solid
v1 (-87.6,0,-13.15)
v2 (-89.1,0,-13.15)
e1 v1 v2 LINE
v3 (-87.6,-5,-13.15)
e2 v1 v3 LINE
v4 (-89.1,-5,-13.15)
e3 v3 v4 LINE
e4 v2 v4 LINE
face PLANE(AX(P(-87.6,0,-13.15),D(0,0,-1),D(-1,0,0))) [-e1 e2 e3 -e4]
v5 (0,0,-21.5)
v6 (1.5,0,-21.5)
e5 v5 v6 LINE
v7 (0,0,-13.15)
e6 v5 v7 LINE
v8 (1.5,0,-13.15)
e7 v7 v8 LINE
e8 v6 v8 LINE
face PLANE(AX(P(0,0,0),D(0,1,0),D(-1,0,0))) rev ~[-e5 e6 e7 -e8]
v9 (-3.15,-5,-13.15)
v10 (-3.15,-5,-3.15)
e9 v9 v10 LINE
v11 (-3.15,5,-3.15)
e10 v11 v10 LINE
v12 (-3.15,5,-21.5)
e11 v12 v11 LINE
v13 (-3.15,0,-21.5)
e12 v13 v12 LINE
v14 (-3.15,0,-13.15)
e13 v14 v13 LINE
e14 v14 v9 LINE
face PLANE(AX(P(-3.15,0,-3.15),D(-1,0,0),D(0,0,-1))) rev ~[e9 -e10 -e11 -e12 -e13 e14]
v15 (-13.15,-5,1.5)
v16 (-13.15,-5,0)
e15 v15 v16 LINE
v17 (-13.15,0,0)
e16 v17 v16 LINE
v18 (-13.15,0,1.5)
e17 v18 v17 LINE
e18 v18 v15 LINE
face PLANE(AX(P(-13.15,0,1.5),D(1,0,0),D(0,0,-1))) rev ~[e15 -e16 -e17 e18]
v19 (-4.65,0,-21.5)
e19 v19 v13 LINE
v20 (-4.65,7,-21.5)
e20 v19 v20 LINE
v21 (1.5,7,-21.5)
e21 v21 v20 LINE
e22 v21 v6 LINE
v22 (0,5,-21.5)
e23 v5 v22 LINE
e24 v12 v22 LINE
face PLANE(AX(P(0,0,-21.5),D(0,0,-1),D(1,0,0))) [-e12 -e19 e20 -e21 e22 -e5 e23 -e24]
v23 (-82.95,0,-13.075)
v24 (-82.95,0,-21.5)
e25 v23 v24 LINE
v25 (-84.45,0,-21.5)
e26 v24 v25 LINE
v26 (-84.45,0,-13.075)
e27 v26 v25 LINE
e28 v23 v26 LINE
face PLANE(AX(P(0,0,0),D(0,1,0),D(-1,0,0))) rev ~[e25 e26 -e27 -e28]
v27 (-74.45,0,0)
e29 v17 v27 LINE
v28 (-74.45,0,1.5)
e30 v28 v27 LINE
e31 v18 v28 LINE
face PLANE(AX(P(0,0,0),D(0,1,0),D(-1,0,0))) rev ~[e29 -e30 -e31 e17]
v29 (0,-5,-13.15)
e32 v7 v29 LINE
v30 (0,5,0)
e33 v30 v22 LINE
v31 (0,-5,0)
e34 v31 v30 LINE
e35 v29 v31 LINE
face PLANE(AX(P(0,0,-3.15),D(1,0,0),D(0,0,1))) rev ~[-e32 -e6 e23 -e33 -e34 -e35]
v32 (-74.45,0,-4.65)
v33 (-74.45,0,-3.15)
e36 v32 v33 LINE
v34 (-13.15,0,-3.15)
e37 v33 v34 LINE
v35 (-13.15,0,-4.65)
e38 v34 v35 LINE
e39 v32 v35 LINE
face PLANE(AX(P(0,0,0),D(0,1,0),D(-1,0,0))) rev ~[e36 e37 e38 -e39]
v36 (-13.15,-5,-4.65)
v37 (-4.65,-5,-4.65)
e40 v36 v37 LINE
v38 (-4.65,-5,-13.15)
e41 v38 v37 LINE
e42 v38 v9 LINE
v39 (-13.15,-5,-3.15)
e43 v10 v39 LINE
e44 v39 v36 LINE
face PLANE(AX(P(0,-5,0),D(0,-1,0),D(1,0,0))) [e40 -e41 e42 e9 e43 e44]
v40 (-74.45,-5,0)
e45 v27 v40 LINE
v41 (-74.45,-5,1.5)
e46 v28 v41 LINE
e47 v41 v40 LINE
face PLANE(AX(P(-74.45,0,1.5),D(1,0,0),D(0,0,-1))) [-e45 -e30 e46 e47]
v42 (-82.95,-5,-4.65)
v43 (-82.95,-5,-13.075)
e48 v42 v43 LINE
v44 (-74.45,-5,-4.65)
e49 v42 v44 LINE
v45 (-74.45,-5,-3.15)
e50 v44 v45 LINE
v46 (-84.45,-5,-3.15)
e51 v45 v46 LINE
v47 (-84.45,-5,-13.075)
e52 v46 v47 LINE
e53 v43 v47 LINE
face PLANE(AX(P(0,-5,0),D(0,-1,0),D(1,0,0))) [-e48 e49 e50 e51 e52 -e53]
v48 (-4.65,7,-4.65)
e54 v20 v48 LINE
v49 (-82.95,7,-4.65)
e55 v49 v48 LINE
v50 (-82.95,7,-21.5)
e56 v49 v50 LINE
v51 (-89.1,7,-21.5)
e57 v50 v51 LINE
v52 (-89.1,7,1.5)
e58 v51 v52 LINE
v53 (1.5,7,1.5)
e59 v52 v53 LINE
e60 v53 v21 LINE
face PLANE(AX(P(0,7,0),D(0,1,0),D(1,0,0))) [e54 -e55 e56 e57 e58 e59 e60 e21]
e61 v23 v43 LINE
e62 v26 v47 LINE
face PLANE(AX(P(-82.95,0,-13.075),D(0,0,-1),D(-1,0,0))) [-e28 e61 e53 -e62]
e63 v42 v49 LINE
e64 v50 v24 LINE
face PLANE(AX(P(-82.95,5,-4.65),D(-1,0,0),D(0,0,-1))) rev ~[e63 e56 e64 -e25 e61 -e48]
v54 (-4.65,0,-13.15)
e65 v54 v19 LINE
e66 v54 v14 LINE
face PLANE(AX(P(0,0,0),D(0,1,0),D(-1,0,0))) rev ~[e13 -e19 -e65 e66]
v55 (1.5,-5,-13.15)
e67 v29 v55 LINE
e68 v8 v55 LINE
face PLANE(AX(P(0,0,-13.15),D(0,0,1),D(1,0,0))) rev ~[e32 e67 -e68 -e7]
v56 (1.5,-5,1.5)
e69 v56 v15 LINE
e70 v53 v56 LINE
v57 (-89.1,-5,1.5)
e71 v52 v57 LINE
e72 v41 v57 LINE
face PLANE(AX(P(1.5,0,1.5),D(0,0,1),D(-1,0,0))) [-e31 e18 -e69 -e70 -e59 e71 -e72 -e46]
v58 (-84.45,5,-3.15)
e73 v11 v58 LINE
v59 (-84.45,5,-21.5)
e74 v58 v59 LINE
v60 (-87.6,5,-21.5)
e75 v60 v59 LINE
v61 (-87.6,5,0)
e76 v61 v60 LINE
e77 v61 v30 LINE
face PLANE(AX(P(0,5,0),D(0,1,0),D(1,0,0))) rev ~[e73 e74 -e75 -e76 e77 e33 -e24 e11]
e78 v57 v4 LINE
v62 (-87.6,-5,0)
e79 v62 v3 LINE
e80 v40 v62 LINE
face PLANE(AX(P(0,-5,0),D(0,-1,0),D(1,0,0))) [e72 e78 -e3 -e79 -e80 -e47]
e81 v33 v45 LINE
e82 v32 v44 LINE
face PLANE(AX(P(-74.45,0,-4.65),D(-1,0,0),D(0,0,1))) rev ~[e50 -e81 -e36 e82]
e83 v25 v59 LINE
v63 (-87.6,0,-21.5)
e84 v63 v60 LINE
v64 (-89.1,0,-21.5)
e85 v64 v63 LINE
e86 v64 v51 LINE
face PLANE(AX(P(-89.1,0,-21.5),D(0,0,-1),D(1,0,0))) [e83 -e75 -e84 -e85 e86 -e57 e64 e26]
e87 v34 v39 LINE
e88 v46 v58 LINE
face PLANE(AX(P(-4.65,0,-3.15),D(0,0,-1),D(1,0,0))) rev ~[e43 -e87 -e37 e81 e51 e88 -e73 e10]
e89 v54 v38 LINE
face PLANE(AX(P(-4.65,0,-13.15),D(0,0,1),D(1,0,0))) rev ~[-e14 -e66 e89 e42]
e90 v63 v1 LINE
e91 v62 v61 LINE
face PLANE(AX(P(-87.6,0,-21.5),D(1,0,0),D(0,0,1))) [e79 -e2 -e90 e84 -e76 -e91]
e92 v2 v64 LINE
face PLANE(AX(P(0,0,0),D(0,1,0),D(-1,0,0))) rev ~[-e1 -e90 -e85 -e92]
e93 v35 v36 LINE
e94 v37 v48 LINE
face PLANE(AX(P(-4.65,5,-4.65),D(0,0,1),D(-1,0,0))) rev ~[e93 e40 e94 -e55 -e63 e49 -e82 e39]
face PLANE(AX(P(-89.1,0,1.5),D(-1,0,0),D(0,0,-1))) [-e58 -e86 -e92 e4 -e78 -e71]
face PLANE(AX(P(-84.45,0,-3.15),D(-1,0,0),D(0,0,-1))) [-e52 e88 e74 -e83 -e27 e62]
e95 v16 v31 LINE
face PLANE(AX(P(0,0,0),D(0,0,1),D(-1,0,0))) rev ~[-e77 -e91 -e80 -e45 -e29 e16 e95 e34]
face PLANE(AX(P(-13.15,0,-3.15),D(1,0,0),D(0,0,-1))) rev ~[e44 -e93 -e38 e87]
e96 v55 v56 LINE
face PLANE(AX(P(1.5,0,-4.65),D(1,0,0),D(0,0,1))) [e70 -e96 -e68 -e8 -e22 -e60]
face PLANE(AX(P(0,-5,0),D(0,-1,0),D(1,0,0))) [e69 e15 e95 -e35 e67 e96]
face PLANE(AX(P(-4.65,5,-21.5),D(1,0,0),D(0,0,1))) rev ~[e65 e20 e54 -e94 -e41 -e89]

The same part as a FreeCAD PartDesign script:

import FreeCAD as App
import Part
import Sketcher

V = App.Vector
Q = App.Units.Quantity

doc = App.newDocument("Part")
body = doc.addObject("PartDesign::Body", "Body")
body.AllowCompound = True

sketch1 = body.newObject("Sketcher::SketchObject", "Sketch")
sketch1.AttachmentSupport = (doc.getObject("XZ_Plane"), [""])
sketch1.MapMode = "FlatFace"
sketch1.addGeometry([
    Part.LineSegment(V(0, 0, 0), V(-87.6, 0, 0)),
    Part.LineSegment(V(-87.6, 0, 0), V(-87.6, -21.5, 0)),
    Part.LineSegment(V(-87.6, -21.5, 0), V(-89.1, -21.5, 0)),
    Part.LineSegment(V(-89.1, -21.5, 0), V(-89.1, 1.5, 0)),
    Part.LineSegment(V(-89.1, 1.5, 0), V(1.5, 1.5, 0)),
    Part.LineSegment(V(1.5, 1.5, 0), V(1.5, -21.5, 0)),
    Part.LineSegment(V(1.5, -21.5, 0), V(0, -21.5, 0)),
    Part.LineSegment(V(0, -21.5, 0), V(0, 0, 0)),
    Part.LineSegment(V(-3.1, -3.1, 0), V(-3.1, -21.5, 0)),
    Part.LineSegment(V(-3.1, -21.5, 0), V(-4.7, -21.5, 0)),
    Part.LineSegment(V(-4.7, -21.5, 0), V(-4.7, -4.7, 0)),
    Part.LineSegment(V(-4.7, -4.7, 0), V(-83, -4.7, 0)),
    Part.LineSegment(V(-83, -4.7, 0), V(-83, -21.5, 0)),
    Part.LineSegment(V(-83, -21.5, 0), V(-84.5, -21.5, 0)),
    Part.LineSegment(V(-84.5, -21.5, 0), V(-84.5, -3.1, 0)),
    Part.LineSegment(V(-84.5, -3.1, 0), V(-3.1, -3.1, 0)),
], False)
sketch1.addConstraint([
    Sketcher.Constraint("Coincident", 0, 2, 1, 1),
    Sketcher.Constraint("Coincident", 1, 2, 2, 1),
    Sketcher.Constraint("Coincident", 2, 2, 3, 1),
    Sketcher.Constraint("Coincident", 3, 2, 4, 1),
    Sketcher.Constraint("Coincident", 4, 2, 5, 1),
    Sketcher.Constraint("Coincident", 5, 2, 6, 1),
    Sketcher.Constraint("Coincident", 6, 2, 7, 1),
    Sketcher.Constraint("Coincident", 7, 2, 0, 1),
    Sketcher.Constraint("Coincident", 8, 2, 9, 1),
    Sketcher.Constraint("Coincident", 9, 2, 10, 1),
    Sketcher.Constraint("Coincident", 10, 2, 11, 1),
    Sketcher.Constraint("Coincident", 11, 2, 12, 1),
    Sketcher.Constraint("Coincident", 12, 2, 13, 1),
    Sketcher.Constraint("Coincident", 13, 2, 14, 1),
    Sketcher.Constraint("Coincident", 14, 2, 15, 1),
    Sketcher.Constraint("Coincident", 15, 2, 8, 1),
    Sketcher.Constraint("Horizontal", 0),
    Sketcher.Constraint("Vertical", 1),
    Sketcher.Constraint("Horizontal", 2),
    Sketcher.Constraint("Vertical", 3),
    Sketcher.Constraint("Horizontal", 4),
    Sketcher.Constraint("Vertical", 5),
    Sketcher.Constraint("Horizontal", 6),
    Sketcher.Constraint("Vertical", 7),
    Sketcher.Constraint("Vertical", 8),
    Sketcher.Constraint("Horizontal", 9),
    Sketcher.Constraint("Vertical", 10),
    Sketcher.Constraint("Horizontal", 11),
    Sketcher.Constraint("Vertical", 12),
    Sketcher.Constraint("Horizontal", 13),
    Sketcher.Constraint("Vertical", 14),
    Sketcher.Constraint("Horizontal", 15),
    Sketcher.Constraint("Coincident", 7, 2, -1, 1),
    Sketcher.Constraint("Horizontal", 2, 2, 5, 2),
    Sketcher.Constraint("Horizontal", 6, 2, 8, 2),
    Sketcher.Constraint("Horizontal", 9, 2, 12, 2),
    Sketcher.Constraint("Equal", 2, 6),
    Sketcher.Constraint("Equal", 6, 9),
    Sketcher.Constraint("Equal", 9, 13),
    Sketcher.Constraint("DistanceX", 0, 2, 0, 1, Q("87.6 mm")),
    Sketcher.Constraint("DistanceX", 2, 2, 2, 1, Q("1.5 mm")),
    Sketcher.Constraint("DistanceY", -1, 1, 3, 2, Q("1.5 mm")),
    Sketcher.Constraint("DistanceY", 11, 2, 14, 2, Q("1.5 mm")),
    Sketcher.Constraint("DistanceY", 3, 1, 3, 2, Q("23 mm")),
    Sketcher.Constraint("DistanceX", 8, 2, -1, 1, Q("3.15 mm")),
    Sketcher.Constraint("DistanceY", 14, 2, -1, 1, Q("3.15 mm")),
    Sketcher.Constraint("DistanceX", 1, 2, 13, 2, Q("3.15 mm")),
])
pad1 = body.newObject("PartDesign::Pad", "Pad")
pad1.Profile = sketch1
pad1.Length = 5
pad1.Reversed = True

sketch2 = body.newObject("Sketcher::SketchObject", "Sketch001")
sketch2.AttachmentSupport = (doc.getObject("XZ_Plane"), [""])
sketch2.MapMode = "FlatFace"
sketch2.AttachmentOffset = App.Placement(V(0, 0, -5), App.Rotation())
sketch2.addGeometry([
    Part.LineSegment(V(-5, -5, 0), V(-83, -5, 0)),
    Part.LineSegment(V(-83, -5, 0), V(-83, -22, 0)),
    Part.LineSegment(V(-83, -22, 0), V(-89, -22, 0)),
    Part.LineSegment(V(-89, -22, 0), V(-89, 2, 0)),
    Part.LineSegment(V(-89, 2, 0), V(2, 2, 0)),
    Part.LineSegment(V(2, 2, 0), V(2, -22, 0)),
    Part.LineSegment(V(2, -22, 0), V(-5, -22, 0)),
    Part.LineSegment(V(-5, -22, 0), V(-5, -5, 0)),
], False)
sketch2.addConstraint([
    Sketcher.Constraint("Coincident", 0, 2, 1, 1),
    Sketcher.Constraint("Coincident", 1, 2, 2, 1),
    Sketcher.Constraint("Coincident", 2, 2, 3, 1),
    Sketcher.Constraint("Coincident", 3, 2, 4, 1),
    Sketcher.Constraint("Coincident", 4, 2, 5, 1),
    Sketcher.Constraint("Coincident", 5, 2, 6, 1),
    Sketcher.Constraint("Coincident", 6, 2, 7, 1),
    Sketcher.Constraint("Coincident", 7, 2, 0, 1),
    Sketcher.Constraint("Horizontal", 0),
    Sketcher.Constraint("Vertical", 1),
    Sketcher.Constraint("Horizontal", 2),
    Sketcher.Constraint("Vertical", 3),
    Sketcher.Constraint("Horizontal", 4),
    Sketcher.Constraint("Vertical", 5),
    Sketcher.Constraint("Horizontal", 6),
    Sketcher.Constraint("Vertical", 7),
    Sketcher.Constraint("Horizontal", 2, 2, 5, 2),
    Sketcher.Constraint("Equal", 2, 6),
    Sketcher.Constraint("DistanceY", 3, 1, 3, 2, Q("23 mm")),
    Sketcher.Constraint("DistanceX", 0, 2, 0, 1, Q("78.3 mm")),
    Sketcher.Constraint("DistanceX", 4, 1, 4, 2, Q("90.6 mm")),
    Sketcher.Constraint("DistanceY", 1, 2, 1, 1, Q("16.85 mm")),
    Sketcher.Constraint("DistanceY", 1, 2, -1, 1, Q("21.5 mm")),
    Sketcher.Constraint("DistanceX", 2, 2, -1, 1, Q("89.1 mm")),
])
pad2 = body.newObject("PartDesign::Pad", "Pad001")
pad2.Profile = sketch2
pad2.Length = 2
pad2.Reversed = True

sketch3 = body.newObject("Sketcher::SketchObject", "Sketch002")
sketch3.AttachmentSupport = (doc.getObject("XZ_Plane"), [""])
sketch3.MapMode = "FlatFace"
sketch3.addGeometry([
    Part.LineSegment(V(-4.7, -4.7, 0), V(-4.7, -13.2, 0)),
    Part.LineSegment(V(-4.7, -13.2, 0), V(-3.1, -13.2, 0)),
    Part.LineSegment(V(-3.1, -13.2, 0), V(-3.1, -3.1, 0)),
    Part.LineSegment(V(-3.1, -3.1, 0), V(-13.2, -3.1, 0)),
    Part.LineSegment(V(-13.2, -3.1, 0), V(-13.2, -4.7, 0)),
    Part.LineSegment(V(-13.2, -4.7, 0), V(-4.7, -4.7, 0)),
    Part.LineSegment(V(-83, -4.7, 0), V(-74.5, -4.7, 0)),
    Part.LineSegment(V(-74.5, -4.7, 0), V(-74.5, -3.1, 0)),
    Part.LineSegment(V(-74.5, -3.1, 0), V(-84.5, -3.1, 0)),
    Part.LineSegment(V(-84.5, -3.1, 0), V(-84.5, -13.1, 0)),
    Part.LineSegment(V(-84.5, -13.1, 0), V(-83, -13.1, 0)),
    Part.LineSegment(V(-83, -13.1, 0), V(-83, -4.7, 0)),
    Part.LineSegment(V(0, 0, 0), V(0, -13.2, 0)),
    Part.LineSegment(V(0, -13.2, 0), V(1.5, -13.2, 0)),
    Part.LineSegment(V(1.5, -13.2, 0), V(1.5, 1.5, 0)),
    Part.LineSegment(V(1.5, 1.5, 0), V(-13.2, 1.5, 0)),
    Part.LineSegment(V(-13.2, 1.5, 0), V(-13.2, 0, 0)),
    Part.LineSegment(V(-13.2, 0, 0), V(0, 0, 0)),
    Part.LineSegment(V(-87.6, 0, 0), V(-74.5, 0, 0)),
    Part.LineSegment(V(-74.5, 0, 0), V(-74.5, 1.5, 0)),
    Part.LineSegment(V(-74.5, 1.5, 0), V(-89.1, 1.5, 0)),
    Part.LineSegment(V(-89.1, 1.5, 0), V(-89.1, -13.2, 0)),
    Part.LineSegment(V(-89.1, -13.2, 0), V(-87.6, -13.2, 0)),
    Part.LineSegment(V(-87.6, -13.2, 0), V(-87.6, 0, 0)),
], False)
sketch3.addConstraint([
    Sketcher.Constraint("Coincident", 0, 2, 1, 1),
    Sketcher.Constraint("Coincident", 1, 2, 2, 1),
    Sketcher.Constraint("Coincident", 2, 2, 3, 1),
    Sketcher.Constraint("Coincident", 3, 2, 4, 1),
    Sketcher.Constraint("Coincident", 4, 2, 5, 1),
    Sketcher.Constraint("Coincident", 5, 2, 0, 1),
    Sketcher.Constraint("Coincident", 6, 2, 7, 1),
    Sketcher.Constraint("Coincident", 7, 2, 8, 1),
    Sketcher.Constraint("Coincident", 8, 2, 9, 1),
    Sketcher.Constraint("Coincident", 9, 2, 10, 1),
    Sketcher.Constraint("Coincident", 10, 2, 11, 1),
    Sketcher.Constraint("Coincident", 11, 2, 6, 1),
    Sketcher.Constraint("Coincident", 12, 2, 13, 1),
    Sketcher.Constraint("Coincident", 13, 2, 14, 1),
    Sketcher.Constraint("Coincident", 14, 2, 15, 1),
    Sketcher.Constraint("Coincident", 15, 2, 16, 1),
    Sketcher.Constraint("Coincident", 16, 2, 17, 1),
    Sketcher.Constraint("Coincident", 17, 2, 12, 1),
    Sketcher.Constraint("Coincident", 18, 2, 19, 1),
    Sketcher.Constraint("Coincident", 19, 2, 20, 1),
    Sketcher.Constraint("Coincident", 20, 2, 21, 1),
    Sketcher.Constraint("Coincident", 21, 2, 22, 1),
    Sketcher.Constraint("Coincident", 22, 2, 23, 1),
    Sketcher.Constraint("Coincident", 23, 2, 18, 1),
    Sketcher.Constraint("Vertical", 0),
    Sketcher.Constraint("Horizontal", 1),
    Sketcher.Constraint("Vertical", 2),
    Sketcher.Constraint("Horizontal", 3),
    Sketcher.Constraint("Vertical", 4),
    Sketcher.Constraint("Horizontal", 5),
    Sketcher.Constraint("Horizontal", 6),
    Sketcher.Constraint("Vertical", 7),
    Sketcher.Constraint("Horizontal", 8),
    Sketcher.Constraint("Vertical", 9),
    Sketcher.Constraint("Horizontal", 10),
    Sketcher.Constraint("Vertical", 11),
    Sketcher.Constraint("Vertical", 12),
    Sketcher.Constraint("Horizontal", 13),
    Sketcher.Constraint("Vertical", 14),
    Sketcher.Constraint("Horizontal", 15),
    Sketcher.Constraint("Vertical", 16),
    Sketcher.Constraint("Horizontal", 17),
    Sketcher.Constraint("Horizontal", 18),
    Sketcher.Constraint("Vertical", 19),
    Sketcher.Constraint("Horizontal", 20),
    Sketcher.Constraint("Vertical", 21),
    Sketcher.Constraint("Horizontal", 22),
    Sketcher.Constraint("Vertical", 23),
    Sketcher.Constraint("Coincident", 17, 2, -1, 1),
    Sketcher.Constraint("PointOnObject", 18, 2, -1),
    Sketcher.Constraint("Horizontal", 5, 2, 6, 2),
    Sketcher.Constraint("Horizontal", 3, 2, 7, 2),
    Sketcher.Constraint("Horizontal", 1, 2, 12, 2),
    Sketcher.Constraint("Horizontal", 15, 2, 19, 2),
    Sketcher.Constraint("Horizontal", 13, 2, 21, 2),
    Sketcher.Constraint("Vertical", 4, 2, 15, 2),
    Sketcher.Constraint("Vertical", 7, 2, 18, 2),
    Sketcher.Constraint("Equal", 5, 6),
    Sketcher.Constraint("Equal", 3, 8),
    Sketcher.Constraint("Equal", 10, 13),
    Sketcher.Constraint("Equal", 17, 18),
    Sketcher.Constraint("Equal", 15, 20),
    Sketcher.Constraint("Equal", 6, 0),
    Sketcher.Constraint("Equal", 8, 2),
    Sketcher.Constraint("Equal", 18, 12),
    Sketcher.Constraint("Equal", 20, 14),
    Sketcher.Constraint("DistanceX", 3, 2, 3, 1, Q("10 mm")),
    Sketcher.Constraint("DistanceX", 15, 2, 15, 1, Q("14.65 mm")),
    Sketcher.Constraint("DistanceX", 1, 1, 1, 2, Q("1.5 mm")),
    Sketcher.Constraint("DistanceX", 20, 2, -1, 1, Q("89.1 mm")),
    Sketcher.Constraint("DistanceY", 9, 2, 9, 1, Q("9.925 mm")),
])
pad3 = body.newObject("PartDesign::Pad", "Pad002")
pad3.Profile = sketch3
pad3.Length = 5

doc.recompute()
